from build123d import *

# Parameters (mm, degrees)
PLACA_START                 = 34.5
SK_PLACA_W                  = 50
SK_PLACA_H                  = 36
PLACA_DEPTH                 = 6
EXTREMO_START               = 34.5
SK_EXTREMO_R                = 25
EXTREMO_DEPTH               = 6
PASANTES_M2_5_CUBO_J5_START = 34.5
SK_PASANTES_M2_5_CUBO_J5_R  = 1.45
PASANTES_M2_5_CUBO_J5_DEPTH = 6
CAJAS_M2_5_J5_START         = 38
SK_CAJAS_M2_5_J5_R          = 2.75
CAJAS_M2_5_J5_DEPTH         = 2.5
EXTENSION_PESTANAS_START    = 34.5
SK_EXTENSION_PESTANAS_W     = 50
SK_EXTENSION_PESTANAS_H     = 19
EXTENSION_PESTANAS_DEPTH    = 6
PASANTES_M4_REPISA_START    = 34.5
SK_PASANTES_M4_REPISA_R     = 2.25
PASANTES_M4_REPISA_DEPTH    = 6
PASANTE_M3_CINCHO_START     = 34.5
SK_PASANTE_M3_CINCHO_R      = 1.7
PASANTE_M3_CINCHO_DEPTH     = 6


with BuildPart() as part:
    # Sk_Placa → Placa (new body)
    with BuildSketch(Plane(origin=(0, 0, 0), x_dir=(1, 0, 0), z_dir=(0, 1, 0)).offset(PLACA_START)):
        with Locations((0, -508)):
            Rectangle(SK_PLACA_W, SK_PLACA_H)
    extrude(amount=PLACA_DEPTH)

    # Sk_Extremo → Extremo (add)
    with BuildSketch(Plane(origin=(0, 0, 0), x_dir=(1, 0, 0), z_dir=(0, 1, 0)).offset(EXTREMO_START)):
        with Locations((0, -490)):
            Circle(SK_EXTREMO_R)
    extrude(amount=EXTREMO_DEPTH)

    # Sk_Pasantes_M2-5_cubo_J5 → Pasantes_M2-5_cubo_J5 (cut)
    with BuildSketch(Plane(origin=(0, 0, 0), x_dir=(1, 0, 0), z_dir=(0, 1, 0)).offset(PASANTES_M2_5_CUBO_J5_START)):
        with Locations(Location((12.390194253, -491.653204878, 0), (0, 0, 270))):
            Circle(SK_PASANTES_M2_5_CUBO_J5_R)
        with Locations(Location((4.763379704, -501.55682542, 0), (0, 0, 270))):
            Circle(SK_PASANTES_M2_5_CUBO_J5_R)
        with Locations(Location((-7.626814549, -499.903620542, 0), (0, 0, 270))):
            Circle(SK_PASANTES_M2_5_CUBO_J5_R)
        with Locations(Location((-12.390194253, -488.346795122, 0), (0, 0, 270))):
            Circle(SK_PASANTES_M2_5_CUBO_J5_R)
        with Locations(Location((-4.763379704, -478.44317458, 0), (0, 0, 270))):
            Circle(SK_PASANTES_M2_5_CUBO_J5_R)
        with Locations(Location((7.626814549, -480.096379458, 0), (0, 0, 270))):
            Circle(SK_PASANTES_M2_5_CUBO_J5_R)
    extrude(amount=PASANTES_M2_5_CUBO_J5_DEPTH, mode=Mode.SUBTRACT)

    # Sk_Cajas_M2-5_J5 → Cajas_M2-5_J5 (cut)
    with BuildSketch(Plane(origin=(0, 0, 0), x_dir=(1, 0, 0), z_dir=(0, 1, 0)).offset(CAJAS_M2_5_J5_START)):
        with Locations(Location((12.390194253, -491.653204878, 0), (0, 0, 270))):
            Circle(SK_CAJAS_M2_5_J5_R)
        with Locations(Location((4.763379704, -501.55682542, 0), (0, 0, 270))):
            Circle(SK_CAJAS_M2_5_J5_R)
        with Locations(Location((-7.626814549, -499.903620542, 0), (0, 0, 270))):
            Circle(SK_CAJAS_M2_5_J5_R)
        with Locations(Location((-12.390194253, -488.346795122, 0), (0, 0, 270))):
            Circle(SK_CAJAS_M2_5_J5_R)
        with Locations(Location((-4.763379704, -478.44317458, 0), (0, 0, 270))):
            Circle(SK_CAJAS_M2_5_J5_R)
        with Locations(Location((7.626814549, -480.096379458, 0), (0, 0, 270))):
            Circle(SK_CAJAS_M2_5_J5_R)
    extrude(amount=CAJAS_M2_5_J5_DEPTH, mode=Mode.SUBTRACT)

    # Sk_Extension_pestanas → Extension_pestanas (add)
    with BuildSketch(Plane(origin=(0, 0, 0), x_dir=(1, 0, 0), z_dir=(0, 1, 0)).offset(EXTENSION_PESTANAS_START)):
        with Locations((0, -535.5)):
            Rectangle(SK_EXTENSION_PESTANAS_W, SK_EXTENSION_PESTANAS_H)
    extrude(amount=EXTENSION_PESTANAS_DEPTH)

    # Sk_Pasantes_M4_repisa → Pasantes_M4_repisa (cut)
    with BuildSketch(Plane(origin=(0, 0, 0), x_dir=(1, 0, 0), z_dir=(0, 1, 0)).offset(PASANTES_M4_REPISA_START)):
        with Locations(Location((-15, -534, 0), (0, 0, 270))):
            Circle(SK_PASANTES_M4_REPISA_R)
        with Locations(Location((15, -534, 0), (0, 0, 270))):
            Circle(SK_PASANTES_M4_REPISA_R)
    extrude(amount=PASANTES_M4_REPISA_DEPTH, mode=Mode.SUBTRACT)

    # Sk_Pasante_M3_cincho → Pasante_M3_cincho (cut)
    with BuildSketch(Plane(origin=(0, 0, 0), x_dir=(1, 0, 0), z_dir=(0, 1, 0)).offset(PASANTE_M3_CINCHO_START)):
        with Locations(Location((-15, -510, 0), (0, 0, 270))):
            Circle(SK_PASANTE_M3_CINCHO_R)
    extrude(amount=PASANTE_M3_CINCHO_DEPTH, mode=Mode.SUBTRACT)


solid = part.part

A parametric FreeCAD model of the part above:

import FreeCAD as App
import Part
import Sketcher

V = App.Vector
Q = App.Units.Quantity


def add_polygon(sketch, points):
    """Adds a closed chain of lines whose ends are joined by coincident constraints."""
    first, n = sketch.GeometryCount, len(points)
    for a, b in zip(points, points[1:] + points[:1]):
        sketch.addGeometry(Part.LineSegment(App.Vector(*a, 0), App.Vector(*b, 0)), False)
    for i in range(n):
        sketch.addConstraint(Sketcher.Constraint("Coincident", first + i, 2, first + (i + 1) % n, 1))

doc = App.newDocument("Part")
params = doc.addObject("Spreadsheet::Sheet", "Params")
for row, (alias, value) in enumerate([
    ("sketch1_width", "50 mm"),
    ("sketch1_height", "36 mm"),
    ("pad1_length", "6 mm"),
    ("sketch2_diameter", "50 mm"),
    ("pad2_length", "6 mm"),
    ("sketch3_diameter", "2.9 mm"),
    ("pocket1_length", "6 mm"),
    ("sketch4_diameter", "5.5 mm"),
    ("pocket2_length", "2.5 mm"),
    ("sketch5_width", "50 mm"),
    ("sketch5_height", "19 mm"),
    ("pad3_length", "6 mm"),
    ("sketch6_diameter", "4.5 mm"),
    ("pocket3_length", "6 mm"),
    ("sketch7_diameter", "3.4 mm"),
    ("pocket4_length", "6 mm"),
], start=1):
    params.set(f"A{row}", alias)
    params.set(f"B{row}", "=" + value)
    params.setAlias(f"B{row}", alias)

body = doc.addObject("PartDesign::Body", "Body")

# Sketch on XZ plane
sketch1 = body.newObject("Sketcher::SketchObject", "Sketch")
sketch1.AttachmentSupport = (doc.getObject("XZ_Plane"), [""])
sketch1.MapMode = "FlatFace"
sketch1.AttachmentOffset = App.Placement(V(0, 0, -34.5), App.Rotation())
add_polygon(sketch1, [(-25, 490), (-25, 526), (25, 526), (25, 490)])  # lines 0-3
sketch1.addConstraint(Sketcher.Constraint("Vertical", 0))
sketch1.addConstraint(Sketcher.Constraint("Horizontal", 1))
sketch1.addConstraint(Sketcher.Constraint("Vertical", 2))
sketch1.addConstraint(Sketcher.Constraint("Horizontal", 3))
sketch1.addConstraint(Sketcher.Constraint("DistanceX", 1, 1, 1, 2, Q("50 mm")))
sketch1.addConstraint(Sketcher.Constraint("DistanceY", 0, 1, 0, 2, Q("36 mm")))
sketch1.addConstraint(Sketcher.Constraint("DistanceX", 0, 2, -1, 1, Q("25 mm")))
sketch1.addConstraint(Sketcher.Constraint("DistanceY", -1, 1, 0, 2, Q("526 mm")))
sketch1.setExpression("Constraints[8]", "Params.sketch1_width")
sketch1.setExpression("Constraints[9]", "Params.sketch1_height")
pad1 = body.newObject("PartDesign::Pad", "Pad")
pad1.Profile = sketch1
pad1.setExpression("Length", "Params.pad1_length")
pad1.Reversed = True

# Sketch on XZ plane
sketch2 = body.newObject("Sketcher::SketchObject", "Sketch001")
sketch2.AttachmentSupport = (doc.getObject("XZ_Plane"), [""])
sketch2.MapMode = "FlatFace"
sketch2.AttachmentOffset = App.Placement(V(0, 0, -34.5), App.Rotation())
sketch2.addGeometry(Part.Circle(V(0, 490, 0), V(0, 0, 1), 25), False)
sketch2.addConstraint(Sketcher.Constraint("PointOnObject", 0, 3, -2))
sketch2.addConstraint(Sketcher.Constraint("Diameter", 0, Q("50 mm")))
sketch2.addConstraint(Sketcher.Constraint("DistanceY", -1, 1, 0, 3, Q("490 mm")))
sketch2.setExpression("Constraints[1]", "Params.sketch2_diameter")
pad2 = body.newObject("PartDesign::Pad", "Pad001")
pad2.Profile = sketch2
pad2.setExpression("Length", "Params.pad2_length")
pad2.Reversed = True

# Sketch on XZ plane
sketch3 = body.newObject("Sketcher::SketchObject", "Sketch002")
sketch3.AttachmentSupport = (doc.getObject("XZ_Plane"), [""])
sketch3.MapMode = "FlatFace"
sketch3.AttachmentOffset = App.Placement(V(0, 0, -34.5), App.Rotation())
sketch3.addGeometry(Part.Circle(V(12.4, 491.7, 0), V(0, 0, 1), 1.4), False)
sketch3.addGeometry(Part.Circle(V(4.8, 501.6, 0), V(0, 0, 1), 1.4), False)
sketch3.addGeometry(Part.Circle(V(-7.6, 499.9, 0), V(0, 0, 1), 1.4), False)
sketch3.addGeometry(Part.Circle(V(-12.4, 488.3, 0), V(0, 0, 1), 1.4), False)
sketch3.addGeometry(Part.Circle(V(-4.8, 478.4, 0), V(0, 0, 1), 1.4), False)
sketch3.addGeometry(Part.Circle(V(7.6, 480.1, 0), V(0, 0, 1), 1.4), False)
sketch3.addConstraint(Sketcher.Constraint("Equal", 0, 1))
sketch3.addConstraint(Sketcher.Constraint("Equal", 1, 2))
sketch3.addConstraint(Sketcher.Constraint("Equal", 2, 3))
sketch3.addConstraint(Sketcher.Constraint("Equal", 3, 4))
sketch3.addConstraint(Sketcher.Constraint("Equal", 4, 5))
sketch3.addConstraint(Sketcher.Constraint("Diameter", 0, Q("2.9 mm")))
sketch3.addConstraint(Sketcher.Constraint("DistanceX", -1, 1, 1, 3, Q("4.76338 mm")))
sketch3.addConstraint(Sketcher.Constraint("DistanceY", -1, 1, 2, 3, Q("499.903621 mm")))
sketch3.addConstraint(Sketcher.Constraint("DistanceX", 4, 3, -1, 1, Q("4.76338 mm")))
sketch3.addConstraint(Sketcher.Constraint("DistanceY", -1, 1, 5, 3, Q("480.096379 mm")))
sketch3.addConstraint(Sketcher.Constraint("DistanceY", 0, 3, 1, 3, Q("9.903621 mm")))
sketch3.addConstraint(Sketcher.Constraint("DistanceX", 2, 3, 0, 3, Q("20.017009 mm")))
sketch3.addConstraint(Sketcher.Constraint("DistanceX", 3, 3, 2, 3, Q("4.76338 mm")))
sketch3.addConstraint(Sketcher.Constraint("DistanceY", 3, 3, 1, 3, Q("13.21003 mm")))
sketch3.addConstraint(Sketcher.Constraint("DistanceY", 4, 3, 3, 3, Q("9.903621 mm")))
sketch3.addConstraint(Sketcher.Constraint("DistanceX", 5, 3, 0, 3, Q("4.76338 mm")))
sketch3.addConstraint(Sketcher.Constraint("DistanceX", -1, 1, 0, 3, Q("12.390194 mm")))
sketch3.addConstraint(Sketcher.Constraint("DistanceY", -1, 1, 0, 3, Q("491.653205 mm")))
sketch3.setExpression("Constraints[5]", "Params.sketch3_diameter")
pocket1 = body.newObject("PartDesign::Pocket", "Pocket")
pocket1.Profile = sketch3
pocket1.setExpression("Length", "Params.pocket1_length")

# Sketch on XZ plane
sketch4 = body.newObject("Sketcher::SketchObject", "Sketch003")
sketch4.AttachmentSupport = (doc.getObject("XZ_Plane"), [""])
sketch4.MapMode = "FlatFace"
sketch4.AttachmentOffset = App.Placement(V(0, 0, -38), App.Rotation())
sketch4.addGeometry(Part.Circle(V(12.4, 491.7, 0), V(0, 0, 1), 2.8), False)
sketch4.addGeometry(Part.Circle(V(4.8, 501.6, 0), V(0, 0, 1), 2.8), False)
sketch4.addGeometry(Part.Circle(V(-7.6, 499.9, 0), V(0, 0, 1), 2.8), False)
sketch4.addGeometry(Part.Circle(V(-12.4, 488.3, 0), V(0, 0, 1), 2.8), False)
sketch4.addGeometry(Part.Circle(V(-4.8, 478.4, 0), V(0, 0, 1), 2.8), False)
sketch4.addGeometry(Part.Circle(V(7.6, 480.1, 0), V(0, 0, 1), 2.8), False)
sketch4.addConstraint(Sketcher.Constraint("Equal", 0, 1))
sketch4.addConstraint(Sketcher.Constraint("Equal", 1, 2))
sketch4.addConstraint(Sketcher.Constraint("Equal", 2, 3))
sketch4.addConstraint(Sketcher.Constraint("Equal", 3, 4))
sketch4.addConstraint(Sketcher.Constraint("Equal", 4, 5))
sketch4.addConstraint(Sketcher.Constraint("Diameter", 0, Q("5.5 mm")))
sketch4.addConstraint(Sketcher.Constraint("DistanceX", -1, 1, 1, 3, Q("4.76338 mm")))
sketch4.addConstraint(Sketcher.Constraint("DistanceY", -1, 1, 2, 3, Q("499.903621 mm")))
sketch4.addConstraint(Sketcher.Constraint("DistanceX", 4, 3, -1, 1, Q("4.76338 mm")))
sketch4.addConstraint(Sketcher.Constraint("DistanceY", -1, 1, 5, 3, Q("480.096379 mm")))
sketch4.addConstraint(Sketcher.Constraint("DistanceY", 0, 3, 1, 3, Q("9.903621 mm")))
sketch4.addConstraint(Sketcher.Constraint("DistanceX", 2, 3, 0, 3, Q("20.017009 mm")))
sketch4.addConstraint(Sketcher.Constraint("DistanceX", 3, 3, 2, 3, Q("4.76338 mm")))
sketch4.addConstraint(Sketcher.Constraint("DistanceY", 3, 3, 1, 3, Q("13.21003 mm")))
sketch4.addConstraint(Sketcher.Constraint("DistanceY", 4, 3, 3, 3, Q("9.903621 mm")))
sketch4.addConstraint(Sketcher.Constraint("DistanceX", 5, 3, 0, 3, Q("4.76338 mm")))
sketch4.addConstraint(Sketcher.Constraint("DistanceX", -1, 1, 0, 3, Q("12.390194 mm")))
sketch4.addConstraint(Sketcher.Constraint("DistanceY", -1, 1, 0, 3, Q("491.653205 mm")))
sketch4.setExpression("Constraints[5]", "Params.sketch4_diameter")
pocket2 = body.newObject("PartDesign::Pocket", "Pocket001")
pocket2.Profile = sketch4
pocket2.setExpression("Length", "Params.pocket2_length")

# Sketch on XZ plane
sketch5 = body.newObject("Sketcher::SketchObject", "Sketch004")
sketch5.AttachmentSupport = (doc.getObject("XZ_Plane"), [""])
sketch5.MapMode = "FlatFace"
sketch5.AttachmentOffset = App.Placement(V(0, 0, -34.5), App.Rotation())
add_polygon(sketch5, [(-25, 526), (-25, 545), (25, 545), (25, 526)])  # lines 0-3
sketch5.addConstraint(Sketcher.Constraint("Vertical", 0))
sketch5.addConstraint(Sketcher.Constraint("Horizontal", 1))
sketch5.addConstraint(Sketcher.Constraint("Vertical", 2))
sketch5.addConstraint(Sketcher.Constraint("Horizontal", 3))
sketch5.addConstraint(Sketcher.Constraint("DistanceX", 1, 1, 1, 2, Q("50 mm")))
sketch5.addConstraint(Sketcher.Constraint("DistanceY", 0, 1, 0, 2, Q("19 mm")))
sketch5.addConstraint(Sketcher.Constraint("DistanceX", 0, 2, -1, 1, Q("25 mm")))
sketch5.addConstraint(Sketcher.Constraint("DistanceY", -1, 1, 0, 2, Q("545 mm")))
sketch5.setExpression("Constraints[8]", "Params.sketch5_width")
sketch5.setExpression("Constraints[9]", "Params.sketch5_height")
pad3 = body.newObject("PartDesign::Pad", "Pad002")
pad3.Profile = sketch5
pad3.setExpression("Length", "Params.pad3_length")
pad3.Reversed = True

# Sketch on XZ plane
sketch6 = body.newObject("Sketcher::SketchObject", "Sketch005")
sketch6.AttachmentSupport = (doc.getObject("XZ_Plane"), [""])
sketch6.MapMode = "FlatFace"
sketch6.AttachmentOffset = App.Placement(V(0, 0, -34.5), App.Rotation())
sketch6.addGeometry(Part.Circle(V(-15, 534, 0), V(0, 0, 1), 2.2), False)
sketch6.addGeometry(Part.Circle(V(15, 534, 0), V(0, 0, 1), 2.2), False)
sketch6.addConstraint(Sketcher.Constraint("Equal", 0, 1))
sketch6.addConstraint(Sketcher.Constraint("Symmetric", 0, 3, 1, 3, -2))
sketch6.addConstraint(Sketcher.Constraint("Diameter", 0, Q("4.5 mm")))
sketch6.addConstraint(Sketcher.Constraint("DistanceX", 0, 3, -1, 1, Q("15 mm")))
sketch6.addConstraint(Sketcher.Constraint("DistanceY", -1, 1, 0, 3, Q("534 mm")))
sketch6.setExpression("Constraints[2]", "Params.sketch6_diameter")
pocket3 = body.newObject("PartDesign::Pocket", "Pocket002")
pocket3.Profile = sketch6
pocket3.setExpression("Length", "Params.pocket3_length")

# Sketch on XZ plane
sketch7 = body.newObject("Sketcher::SketchObject", "Sketch006")
sketch7.AttachmentSupport = (doc.getObject("XZ_Plane"), [""])
sketch7.MapMode = "FlatFace"
sketch7.AttachmentOffset = App.Placement(V(0, 0, -34.5), App.Rotation())
sketch7.addGeometry(Part.Circle(V(-15, 510, 0), V(0, 0, 1), 1.7), False)
sketch7.addConstraint(Sketcher.Constraint("Diameter", 0, Q("3.4 mm")))
sketch7.addConstraint(Sketcher.Constraint("DistanceX", 0, 3, -1, 1, Q("15 mm")))
sketch7.addConstraint(Sketcher.Constraint("DistanceY", -1, 1, 0, 3, Q("510 mm")))
sketch7.setExpression("Constraints[0]", "Params.sketch7_diameter")
pocket4 = body.newObject("PartDesign::Pocket", "Pocket003")
pocket4.Profile = sketch7
pocket4.setExpression("Length", "Params.pocket4_length")

doc.recompute()
